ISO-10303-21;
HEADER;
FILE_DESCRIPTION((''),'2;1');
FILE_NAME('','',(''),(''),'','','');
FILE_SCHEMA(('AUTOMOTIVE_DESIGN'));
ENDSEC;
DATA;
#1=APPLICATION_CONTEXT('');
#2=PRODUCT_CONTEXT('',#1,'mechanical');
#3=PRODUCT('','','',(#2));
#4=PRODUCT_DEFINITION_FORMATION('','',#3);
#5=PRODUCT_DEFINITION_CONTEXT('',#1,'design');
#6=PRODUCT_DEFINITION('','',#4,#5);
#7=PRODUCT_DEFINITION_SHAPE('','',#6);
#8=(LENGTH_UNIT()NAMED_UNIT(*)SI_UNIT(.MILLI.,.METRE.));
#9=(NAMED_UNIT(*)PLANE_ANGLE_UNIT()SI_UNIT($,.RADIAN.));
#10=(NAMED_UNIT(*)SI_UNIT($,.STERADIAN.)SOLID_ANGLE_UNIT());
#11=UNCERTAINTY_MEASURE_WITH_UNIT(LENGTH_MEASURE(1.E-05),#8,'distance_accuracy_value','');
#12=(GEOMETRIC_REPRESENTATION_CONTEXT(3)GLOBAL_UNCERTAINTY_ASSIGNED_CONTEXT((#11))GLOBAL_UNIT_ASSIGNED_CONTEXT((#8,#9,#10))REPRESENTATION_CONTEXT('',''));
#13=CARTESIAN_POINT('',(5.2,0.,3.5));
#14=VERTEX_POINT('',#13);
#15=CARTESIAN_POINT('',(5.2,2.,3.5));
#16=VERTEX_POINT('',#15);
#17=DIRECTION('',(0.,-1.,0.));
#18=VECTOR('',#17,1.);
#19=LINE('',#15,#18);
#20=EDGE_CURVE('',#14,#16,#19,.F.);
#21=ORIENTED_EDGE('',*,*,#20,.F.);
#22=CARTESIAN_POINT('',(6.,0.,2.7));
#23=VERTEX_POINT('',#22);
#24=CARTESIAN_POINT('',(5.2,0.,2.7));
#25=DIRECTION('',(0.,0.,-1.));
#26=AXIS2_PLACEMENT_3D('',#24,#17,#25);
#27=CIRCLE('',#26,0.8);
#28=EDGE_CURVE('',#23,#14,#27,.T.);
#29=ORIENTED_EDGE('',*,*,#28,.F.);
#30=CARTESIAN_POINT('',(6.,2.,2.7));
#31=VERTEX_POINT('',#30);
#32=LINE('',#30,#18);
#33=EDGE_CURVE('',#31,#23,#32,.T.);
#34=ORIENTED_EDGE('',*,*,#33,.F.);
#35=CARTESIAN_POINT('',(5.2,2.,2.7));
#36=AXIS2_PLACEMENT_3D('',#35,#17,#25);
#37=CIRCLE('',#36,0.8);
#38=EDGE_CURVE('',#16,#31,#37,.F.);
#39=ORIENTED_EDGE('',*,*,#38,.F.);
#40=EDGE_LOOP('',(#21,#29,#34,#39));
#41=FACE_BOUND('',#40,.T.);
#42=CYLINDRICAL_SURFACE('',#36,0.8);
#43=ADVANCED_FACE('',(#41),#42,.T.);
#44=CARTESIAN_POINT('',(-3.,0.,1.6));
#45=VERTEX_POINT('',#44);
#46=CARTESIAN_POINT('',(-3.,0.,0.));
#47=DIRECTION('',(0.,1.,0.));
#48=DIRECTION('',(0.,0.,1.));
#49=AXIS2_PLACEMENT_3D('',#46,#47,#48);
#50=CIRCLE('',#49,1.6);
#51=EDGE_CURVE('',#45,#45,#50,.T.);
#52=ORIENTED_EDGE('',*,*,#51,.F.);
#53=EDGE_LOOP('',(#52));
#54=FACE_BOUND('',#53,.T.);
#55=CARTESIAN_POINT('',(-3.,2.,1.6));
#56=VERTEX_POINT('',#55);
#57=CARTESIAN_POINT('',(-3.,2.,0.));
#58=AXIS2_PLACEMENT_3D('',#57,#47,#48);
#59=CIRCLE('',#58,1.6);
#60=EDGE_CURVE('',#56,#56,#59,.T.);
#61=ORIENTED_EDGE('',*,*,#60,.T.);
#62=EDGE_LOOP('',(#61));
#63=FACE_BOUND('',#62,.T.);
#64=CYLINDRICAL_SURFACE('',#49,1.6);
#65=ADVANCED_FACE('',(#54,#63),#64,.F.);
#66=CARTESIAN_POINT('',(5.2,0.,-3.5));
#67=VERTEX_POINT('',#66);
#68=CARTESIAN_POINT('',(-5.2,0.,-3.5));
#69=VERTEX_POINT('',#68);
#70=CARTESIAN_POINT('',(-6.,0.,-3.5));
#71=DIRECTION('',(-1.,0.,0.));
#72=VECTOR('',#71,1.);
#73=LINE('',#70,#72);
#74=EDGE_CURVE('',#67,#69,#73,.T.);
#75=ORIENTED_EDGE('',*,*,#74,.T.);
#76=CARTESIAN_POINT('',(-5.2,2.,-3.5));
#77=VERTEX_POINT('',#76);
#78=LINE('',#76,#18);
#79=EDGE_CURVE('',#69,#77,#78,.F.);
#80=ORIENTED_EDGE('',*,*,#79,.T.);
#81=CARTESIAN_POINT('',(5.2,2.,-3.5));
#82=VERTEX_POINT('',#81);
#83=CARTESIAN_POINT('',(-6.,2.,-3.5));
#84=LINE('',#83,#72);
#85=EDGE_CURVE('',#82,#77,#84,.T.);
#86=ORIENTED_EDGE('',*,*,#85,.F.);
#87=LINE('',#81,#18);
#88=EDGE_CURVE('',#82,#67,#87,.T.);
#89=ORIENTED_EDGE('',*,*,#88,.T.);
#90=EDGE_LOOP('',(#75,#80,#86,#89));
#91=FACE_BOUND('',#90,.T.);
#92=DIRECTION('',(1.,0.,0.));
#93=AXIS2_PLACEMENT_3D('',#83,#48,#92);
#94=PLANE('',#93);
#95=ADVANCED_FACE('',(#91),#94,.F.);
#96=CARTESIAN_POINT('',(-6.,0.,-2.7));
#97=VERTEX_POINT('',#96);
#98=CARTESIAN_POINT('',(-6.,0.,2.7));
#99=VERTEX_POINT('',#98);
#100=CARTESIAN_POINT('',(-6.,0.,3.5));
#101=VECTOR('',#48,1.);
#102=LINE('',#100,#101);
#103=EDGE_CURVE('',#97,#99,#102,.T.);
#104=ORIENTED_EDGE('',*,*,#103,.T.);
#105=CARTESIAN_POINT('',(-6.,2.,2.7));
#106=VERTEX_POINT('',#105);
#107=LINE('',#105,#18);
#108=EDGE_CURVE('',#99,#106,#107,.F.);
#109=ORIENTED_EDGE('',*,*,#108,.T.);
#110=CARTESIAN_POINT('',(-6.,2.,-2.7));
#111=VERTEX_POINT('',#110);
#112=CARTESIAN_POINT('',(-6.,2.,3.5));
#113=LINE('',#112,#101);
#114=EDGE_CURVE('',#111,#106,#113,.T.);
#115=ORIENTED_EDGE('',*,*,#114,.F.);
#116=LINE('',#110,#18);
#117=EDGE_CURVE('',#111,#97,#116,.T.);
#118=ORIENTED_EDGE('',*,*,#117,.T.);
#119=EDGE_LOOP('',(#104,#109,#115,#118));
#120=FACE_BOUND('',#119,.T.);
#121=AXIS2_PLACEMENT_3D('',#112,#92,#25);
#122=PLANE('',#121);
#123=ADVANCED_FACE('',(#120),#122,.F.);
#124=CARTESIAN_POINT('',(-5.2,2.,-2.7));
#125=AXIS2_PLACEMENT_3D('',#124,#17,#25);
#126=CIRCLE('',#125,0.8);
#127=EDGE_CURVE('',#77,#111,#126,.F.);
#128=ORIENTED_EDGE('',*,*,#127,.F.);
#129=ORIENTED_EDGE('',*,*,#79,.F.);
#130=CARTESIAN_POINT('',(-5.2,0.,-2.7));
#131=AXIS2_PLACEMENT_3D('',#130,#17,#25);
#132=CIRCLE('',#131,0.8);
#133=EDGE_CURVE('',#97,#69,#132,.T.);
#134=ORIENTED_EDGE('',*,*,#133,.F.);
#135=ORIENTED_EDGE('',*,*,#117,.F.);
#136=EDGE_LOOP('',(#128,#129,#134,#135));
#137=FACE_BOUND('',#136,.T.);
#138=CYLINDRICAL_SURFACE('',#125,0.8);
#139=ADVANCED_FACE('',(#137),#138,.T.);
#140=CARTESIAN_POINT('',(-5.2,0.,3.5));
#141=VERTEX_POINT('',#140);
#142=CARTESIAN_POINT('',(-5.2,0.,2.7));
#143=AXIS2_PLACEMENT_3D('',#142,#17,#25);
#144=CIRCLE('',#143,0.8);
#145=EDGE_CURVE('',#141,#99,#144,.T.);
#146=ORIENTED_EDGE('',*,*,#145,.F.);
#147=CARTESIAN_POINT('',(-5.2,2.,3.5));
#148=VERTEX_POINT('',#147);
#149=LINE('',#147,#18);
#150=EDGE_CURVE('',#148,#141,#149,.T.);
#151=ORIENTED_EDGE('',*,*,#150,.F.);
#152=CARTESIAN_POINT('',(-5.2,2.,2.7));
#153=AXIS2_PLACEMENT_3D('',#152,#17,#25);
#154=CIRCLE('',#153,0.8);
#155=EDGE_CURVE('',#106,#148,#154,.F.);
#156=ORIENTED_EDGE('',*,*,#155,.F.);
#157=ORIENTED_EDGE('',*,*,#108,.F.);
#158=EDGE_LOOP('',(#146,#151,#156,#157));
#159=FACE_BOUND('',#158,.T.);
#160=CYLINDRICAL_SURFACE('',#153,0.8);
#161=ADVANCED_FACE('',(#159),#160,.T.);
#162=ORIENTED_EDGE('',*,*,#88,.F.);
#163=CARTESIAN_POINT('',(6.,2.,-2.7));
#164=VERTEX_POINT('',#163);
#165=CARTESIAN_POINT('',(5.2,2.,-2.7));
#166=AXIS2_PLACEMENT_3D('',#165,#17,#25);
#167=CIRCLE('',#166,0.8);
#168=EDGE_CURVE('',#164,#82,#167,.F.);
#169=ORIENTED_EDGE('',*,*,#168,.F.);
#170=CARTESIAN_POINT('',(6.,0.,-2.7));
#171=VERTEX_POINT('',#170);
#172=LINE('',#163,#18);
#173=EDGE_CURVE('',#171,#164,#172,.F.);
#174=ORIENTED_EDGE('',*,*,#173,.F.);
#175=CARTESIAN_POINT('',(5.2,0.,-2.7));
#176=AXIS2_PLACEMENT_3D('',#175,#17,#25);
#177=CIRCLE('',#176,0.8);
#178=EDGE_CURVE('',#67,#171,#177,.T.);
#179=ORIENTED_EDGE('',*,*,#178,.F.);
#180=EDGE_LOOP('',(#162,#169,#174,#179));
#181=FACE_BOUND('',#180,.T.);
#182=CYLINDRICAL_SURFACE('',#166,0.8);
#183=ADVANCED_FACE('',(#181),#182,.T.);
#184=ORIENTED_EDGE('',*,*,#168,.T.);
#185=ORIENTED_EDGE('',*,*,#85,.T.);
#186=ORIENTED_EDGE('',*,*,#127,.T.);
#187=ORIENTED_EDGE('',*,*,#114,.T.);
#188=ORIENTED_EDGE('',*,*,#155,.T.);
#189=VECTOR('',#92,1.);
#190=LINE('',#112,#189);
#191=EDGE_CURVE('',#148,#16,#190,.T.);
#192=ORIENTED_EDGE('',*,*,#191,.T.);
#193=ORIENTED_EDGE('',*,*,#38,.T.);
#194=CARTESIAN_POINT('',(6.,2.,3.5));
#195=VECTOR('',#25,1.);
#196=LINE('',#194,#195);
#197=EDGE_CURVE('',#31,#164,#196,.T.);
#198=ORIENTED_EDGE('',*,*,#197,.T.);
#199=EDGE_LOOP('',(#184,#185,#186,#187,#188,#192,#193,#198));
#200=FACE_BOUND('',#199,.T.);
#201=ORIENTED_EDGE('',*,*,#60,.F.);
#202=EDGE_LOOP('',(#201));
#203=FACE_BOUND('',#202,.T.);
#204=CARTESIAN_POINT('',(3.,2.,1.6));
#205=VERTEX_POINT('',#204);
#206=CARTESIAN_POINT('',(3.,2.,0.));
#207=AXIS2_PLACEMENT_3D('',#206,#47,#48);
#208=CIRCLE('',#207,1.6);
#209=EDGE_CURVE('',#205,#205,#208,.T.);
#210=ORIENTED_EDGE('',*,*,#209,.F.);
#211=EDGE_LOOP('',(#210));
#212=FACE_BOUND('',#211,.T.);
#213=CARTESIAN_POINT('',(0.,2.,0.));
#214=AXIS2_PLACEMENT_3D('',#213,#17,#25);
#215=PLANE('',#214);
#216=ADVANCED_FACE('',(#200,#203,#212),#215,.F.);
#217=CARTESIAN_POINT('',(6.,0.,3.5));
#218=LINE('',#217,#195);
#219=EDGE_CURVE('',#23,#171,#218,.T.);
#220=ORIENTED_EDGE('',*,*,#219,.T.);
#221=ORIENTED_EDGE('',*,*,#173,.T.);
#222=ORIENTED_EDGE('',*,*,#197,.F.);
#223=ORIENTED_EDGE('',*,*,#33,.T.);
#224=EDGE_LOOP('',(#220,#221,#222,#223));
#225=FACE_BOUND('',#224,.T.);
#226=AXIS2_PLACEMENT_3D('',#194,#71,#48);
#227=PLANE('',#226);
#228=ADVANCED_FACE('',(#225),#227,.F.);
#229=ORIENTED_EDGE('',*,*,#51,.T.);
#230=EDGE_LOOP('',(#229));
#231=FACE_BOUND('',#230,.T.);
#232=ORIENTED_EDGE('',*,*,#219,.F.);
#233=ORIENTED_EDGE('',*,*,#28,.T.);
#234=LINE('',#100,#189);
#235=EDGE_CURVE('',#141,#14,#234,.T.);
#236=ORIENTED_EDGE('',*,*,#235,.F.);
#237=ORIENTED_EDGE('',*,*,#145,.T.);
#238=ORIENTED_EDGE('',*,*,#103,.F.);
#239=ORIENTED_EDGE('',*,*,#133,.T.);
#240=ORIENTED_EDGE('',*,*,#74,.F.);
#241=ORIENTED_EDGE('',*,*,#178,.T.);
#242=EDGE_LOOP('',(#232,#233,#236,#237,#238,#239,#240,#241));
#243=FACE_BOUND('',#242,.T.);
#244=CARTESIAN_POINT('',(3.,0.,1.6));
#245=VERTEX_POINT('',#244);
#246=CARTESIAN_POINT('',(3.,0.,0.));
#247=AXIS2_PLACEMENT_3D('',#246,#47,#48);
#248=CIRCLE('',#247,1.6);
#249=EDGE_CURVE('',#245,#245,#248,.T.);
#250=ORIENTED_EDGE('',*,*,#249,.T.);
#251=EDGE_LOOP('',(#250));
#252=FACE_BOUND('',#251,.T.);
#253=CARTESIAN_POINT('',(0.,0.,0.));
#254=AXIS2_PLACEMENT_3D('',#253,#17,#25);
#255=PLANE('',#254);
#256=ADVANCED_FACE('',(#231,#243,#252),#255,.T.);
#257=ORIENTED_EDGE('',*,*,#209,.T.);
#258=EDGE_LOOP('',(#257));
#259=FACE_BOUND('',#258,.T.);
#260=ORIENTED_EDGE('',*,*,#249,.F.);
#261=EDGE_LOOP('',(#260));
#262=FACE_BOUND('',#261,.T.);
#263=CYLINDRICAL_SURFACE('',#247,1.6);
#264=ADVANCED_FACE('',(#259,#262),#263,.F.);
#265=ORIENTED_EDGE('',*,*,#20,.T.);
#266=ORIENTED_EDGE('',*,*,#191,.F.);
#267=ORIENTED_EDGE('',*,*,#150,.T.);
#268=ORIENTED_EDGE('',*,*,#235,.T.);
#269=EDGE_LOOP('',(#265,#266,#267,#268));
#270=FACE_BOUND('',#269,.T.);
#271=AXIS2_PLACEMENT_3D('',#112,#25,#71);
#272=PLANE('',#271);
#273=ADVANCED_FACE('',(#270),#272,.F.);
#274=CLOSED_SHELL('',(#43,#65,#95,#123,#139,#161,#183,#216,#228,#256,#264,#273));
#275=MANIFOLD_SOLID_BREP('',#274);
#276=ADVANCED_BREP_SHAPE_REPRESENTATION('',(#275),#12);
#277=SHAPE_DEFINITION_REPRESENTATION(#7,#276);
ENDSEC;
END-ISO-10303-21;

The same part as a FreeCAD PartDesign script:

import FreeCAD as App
import Part
import Sketcher

V = App.Vector


def edges_at(feature, points):
    """Names of the edges that pass closest to the given points."""
    edges = feature.Shape.Edges
    near = lambda p: min(range(len(edges)), key=lambda i: edges[i].distToShape(Part.Vertex(*p))[0])
    return sorted({f"Edge{near(p) + 1}" for p in points})


def add_polygon(sketch, points):
    """Adds a closed chain of lines whose ends are joined by coincident constraints."""
    first, n = sketch.GeometryCount, len(points)
    for a, b in zip(points, points[1:] + points[:1]):
        sketch.addGeometry(Part.LineSegment(App.Vector(*a, 0), App.Vector(*b, 0)), False)
    for i in range(n):
        sketch.addConstraint(Sketcher.Constraint("Coincident", first + i, 2, first + (i + 1) % n, 1))

doc = App.newDocument("Part")
body = doc.addObject("PartDesign::Body", "Body")

# Sketch on XZ plane
sketch1 = body.newObject("Sketcher::SketchObject", "Sketch")
sketch1.AttachmentSupport = (doc.getObject("XZ_Plane"), [""])
sketch1.MapMode = "FlatFace"
add_polygon(sketch1, [(-6, -4), (-6, 4), (6, 4), (6, -4)])  # lines 0-3
sketch1.addConstraint([
    Sketcher.Constraint("Vertical", 0),
    Sketcher.Constraint("Horizontal", 1),
    Sketcher.Constraint("Vertical", 2),
    Sketcher.Constraint("Horizontal", 3),
    Sketcher.Constraint("Symmetric", 0, 2, 2, 2, -1, 1),
    Sketcher.Constraint("DistanceX", 1, 1, 1, 2, 12.0),
    Sketcher.Constraint("DistanceY", 0, 1, 0, 2, 7.0),
])
pad1 = body.newObject("PartDesign::Pad", "Pad")
pad1.Profile = sketch1
pad1.Length = 2
pad1.Reversed = True

# Sketch on XZ plane
sketch2 = body.newObject("Sketcher::SketchObject", "Sketch001")
sketch2.AttachmentSupport = (doc.getObject("XZ_Plane"), [""])
sketch2.MapMode = "FlatFace"
sketch2.AttachmentOffset = App.Placement(V(0, 0, -2), App.Rotation())
sketch2.addGeometry([
    Part.Circle(V(-3, 0, 0), V(0, 0, 1), 1.6),
    Part.Circle(V(3, 0, 0), V(0, 0, 1), 1.6),
], False)
sketch2.addConstraint([
    Sketcher.Constraint("Equal", 0, 1),
    Sketcher.Constraint("Symmetric", 0, 3, 1, 3, -1, 1),
    Sketcher.Constraint("PointOnObject", 0, 3, -1),
    Sketcher.Constraint("Diameter", 0, 3.2),
    Sketcher.Constraint("DistanceX", 0, 3, -1, 1, 3.0),
])
pocket1 = body.newObject("PartDesign::Pocket", "Pocket")
pocket1.Profile = sketch2
pocket1.Type = "ThroughAll"
pocket1.Reversed = True
doc.recompute()

fillet = body.newObject("PartDesign::Fillet", "Fillet")
fillet.Base = (pocket1, edges_at(pocket1, [
    (6, 1, 3.5),
    (-6, 1, 3.5),
    (-6, 1, -3.5),
    (6, 1, -3.5),
]))
fillet.Radius = 0.8

doc.recompute()
